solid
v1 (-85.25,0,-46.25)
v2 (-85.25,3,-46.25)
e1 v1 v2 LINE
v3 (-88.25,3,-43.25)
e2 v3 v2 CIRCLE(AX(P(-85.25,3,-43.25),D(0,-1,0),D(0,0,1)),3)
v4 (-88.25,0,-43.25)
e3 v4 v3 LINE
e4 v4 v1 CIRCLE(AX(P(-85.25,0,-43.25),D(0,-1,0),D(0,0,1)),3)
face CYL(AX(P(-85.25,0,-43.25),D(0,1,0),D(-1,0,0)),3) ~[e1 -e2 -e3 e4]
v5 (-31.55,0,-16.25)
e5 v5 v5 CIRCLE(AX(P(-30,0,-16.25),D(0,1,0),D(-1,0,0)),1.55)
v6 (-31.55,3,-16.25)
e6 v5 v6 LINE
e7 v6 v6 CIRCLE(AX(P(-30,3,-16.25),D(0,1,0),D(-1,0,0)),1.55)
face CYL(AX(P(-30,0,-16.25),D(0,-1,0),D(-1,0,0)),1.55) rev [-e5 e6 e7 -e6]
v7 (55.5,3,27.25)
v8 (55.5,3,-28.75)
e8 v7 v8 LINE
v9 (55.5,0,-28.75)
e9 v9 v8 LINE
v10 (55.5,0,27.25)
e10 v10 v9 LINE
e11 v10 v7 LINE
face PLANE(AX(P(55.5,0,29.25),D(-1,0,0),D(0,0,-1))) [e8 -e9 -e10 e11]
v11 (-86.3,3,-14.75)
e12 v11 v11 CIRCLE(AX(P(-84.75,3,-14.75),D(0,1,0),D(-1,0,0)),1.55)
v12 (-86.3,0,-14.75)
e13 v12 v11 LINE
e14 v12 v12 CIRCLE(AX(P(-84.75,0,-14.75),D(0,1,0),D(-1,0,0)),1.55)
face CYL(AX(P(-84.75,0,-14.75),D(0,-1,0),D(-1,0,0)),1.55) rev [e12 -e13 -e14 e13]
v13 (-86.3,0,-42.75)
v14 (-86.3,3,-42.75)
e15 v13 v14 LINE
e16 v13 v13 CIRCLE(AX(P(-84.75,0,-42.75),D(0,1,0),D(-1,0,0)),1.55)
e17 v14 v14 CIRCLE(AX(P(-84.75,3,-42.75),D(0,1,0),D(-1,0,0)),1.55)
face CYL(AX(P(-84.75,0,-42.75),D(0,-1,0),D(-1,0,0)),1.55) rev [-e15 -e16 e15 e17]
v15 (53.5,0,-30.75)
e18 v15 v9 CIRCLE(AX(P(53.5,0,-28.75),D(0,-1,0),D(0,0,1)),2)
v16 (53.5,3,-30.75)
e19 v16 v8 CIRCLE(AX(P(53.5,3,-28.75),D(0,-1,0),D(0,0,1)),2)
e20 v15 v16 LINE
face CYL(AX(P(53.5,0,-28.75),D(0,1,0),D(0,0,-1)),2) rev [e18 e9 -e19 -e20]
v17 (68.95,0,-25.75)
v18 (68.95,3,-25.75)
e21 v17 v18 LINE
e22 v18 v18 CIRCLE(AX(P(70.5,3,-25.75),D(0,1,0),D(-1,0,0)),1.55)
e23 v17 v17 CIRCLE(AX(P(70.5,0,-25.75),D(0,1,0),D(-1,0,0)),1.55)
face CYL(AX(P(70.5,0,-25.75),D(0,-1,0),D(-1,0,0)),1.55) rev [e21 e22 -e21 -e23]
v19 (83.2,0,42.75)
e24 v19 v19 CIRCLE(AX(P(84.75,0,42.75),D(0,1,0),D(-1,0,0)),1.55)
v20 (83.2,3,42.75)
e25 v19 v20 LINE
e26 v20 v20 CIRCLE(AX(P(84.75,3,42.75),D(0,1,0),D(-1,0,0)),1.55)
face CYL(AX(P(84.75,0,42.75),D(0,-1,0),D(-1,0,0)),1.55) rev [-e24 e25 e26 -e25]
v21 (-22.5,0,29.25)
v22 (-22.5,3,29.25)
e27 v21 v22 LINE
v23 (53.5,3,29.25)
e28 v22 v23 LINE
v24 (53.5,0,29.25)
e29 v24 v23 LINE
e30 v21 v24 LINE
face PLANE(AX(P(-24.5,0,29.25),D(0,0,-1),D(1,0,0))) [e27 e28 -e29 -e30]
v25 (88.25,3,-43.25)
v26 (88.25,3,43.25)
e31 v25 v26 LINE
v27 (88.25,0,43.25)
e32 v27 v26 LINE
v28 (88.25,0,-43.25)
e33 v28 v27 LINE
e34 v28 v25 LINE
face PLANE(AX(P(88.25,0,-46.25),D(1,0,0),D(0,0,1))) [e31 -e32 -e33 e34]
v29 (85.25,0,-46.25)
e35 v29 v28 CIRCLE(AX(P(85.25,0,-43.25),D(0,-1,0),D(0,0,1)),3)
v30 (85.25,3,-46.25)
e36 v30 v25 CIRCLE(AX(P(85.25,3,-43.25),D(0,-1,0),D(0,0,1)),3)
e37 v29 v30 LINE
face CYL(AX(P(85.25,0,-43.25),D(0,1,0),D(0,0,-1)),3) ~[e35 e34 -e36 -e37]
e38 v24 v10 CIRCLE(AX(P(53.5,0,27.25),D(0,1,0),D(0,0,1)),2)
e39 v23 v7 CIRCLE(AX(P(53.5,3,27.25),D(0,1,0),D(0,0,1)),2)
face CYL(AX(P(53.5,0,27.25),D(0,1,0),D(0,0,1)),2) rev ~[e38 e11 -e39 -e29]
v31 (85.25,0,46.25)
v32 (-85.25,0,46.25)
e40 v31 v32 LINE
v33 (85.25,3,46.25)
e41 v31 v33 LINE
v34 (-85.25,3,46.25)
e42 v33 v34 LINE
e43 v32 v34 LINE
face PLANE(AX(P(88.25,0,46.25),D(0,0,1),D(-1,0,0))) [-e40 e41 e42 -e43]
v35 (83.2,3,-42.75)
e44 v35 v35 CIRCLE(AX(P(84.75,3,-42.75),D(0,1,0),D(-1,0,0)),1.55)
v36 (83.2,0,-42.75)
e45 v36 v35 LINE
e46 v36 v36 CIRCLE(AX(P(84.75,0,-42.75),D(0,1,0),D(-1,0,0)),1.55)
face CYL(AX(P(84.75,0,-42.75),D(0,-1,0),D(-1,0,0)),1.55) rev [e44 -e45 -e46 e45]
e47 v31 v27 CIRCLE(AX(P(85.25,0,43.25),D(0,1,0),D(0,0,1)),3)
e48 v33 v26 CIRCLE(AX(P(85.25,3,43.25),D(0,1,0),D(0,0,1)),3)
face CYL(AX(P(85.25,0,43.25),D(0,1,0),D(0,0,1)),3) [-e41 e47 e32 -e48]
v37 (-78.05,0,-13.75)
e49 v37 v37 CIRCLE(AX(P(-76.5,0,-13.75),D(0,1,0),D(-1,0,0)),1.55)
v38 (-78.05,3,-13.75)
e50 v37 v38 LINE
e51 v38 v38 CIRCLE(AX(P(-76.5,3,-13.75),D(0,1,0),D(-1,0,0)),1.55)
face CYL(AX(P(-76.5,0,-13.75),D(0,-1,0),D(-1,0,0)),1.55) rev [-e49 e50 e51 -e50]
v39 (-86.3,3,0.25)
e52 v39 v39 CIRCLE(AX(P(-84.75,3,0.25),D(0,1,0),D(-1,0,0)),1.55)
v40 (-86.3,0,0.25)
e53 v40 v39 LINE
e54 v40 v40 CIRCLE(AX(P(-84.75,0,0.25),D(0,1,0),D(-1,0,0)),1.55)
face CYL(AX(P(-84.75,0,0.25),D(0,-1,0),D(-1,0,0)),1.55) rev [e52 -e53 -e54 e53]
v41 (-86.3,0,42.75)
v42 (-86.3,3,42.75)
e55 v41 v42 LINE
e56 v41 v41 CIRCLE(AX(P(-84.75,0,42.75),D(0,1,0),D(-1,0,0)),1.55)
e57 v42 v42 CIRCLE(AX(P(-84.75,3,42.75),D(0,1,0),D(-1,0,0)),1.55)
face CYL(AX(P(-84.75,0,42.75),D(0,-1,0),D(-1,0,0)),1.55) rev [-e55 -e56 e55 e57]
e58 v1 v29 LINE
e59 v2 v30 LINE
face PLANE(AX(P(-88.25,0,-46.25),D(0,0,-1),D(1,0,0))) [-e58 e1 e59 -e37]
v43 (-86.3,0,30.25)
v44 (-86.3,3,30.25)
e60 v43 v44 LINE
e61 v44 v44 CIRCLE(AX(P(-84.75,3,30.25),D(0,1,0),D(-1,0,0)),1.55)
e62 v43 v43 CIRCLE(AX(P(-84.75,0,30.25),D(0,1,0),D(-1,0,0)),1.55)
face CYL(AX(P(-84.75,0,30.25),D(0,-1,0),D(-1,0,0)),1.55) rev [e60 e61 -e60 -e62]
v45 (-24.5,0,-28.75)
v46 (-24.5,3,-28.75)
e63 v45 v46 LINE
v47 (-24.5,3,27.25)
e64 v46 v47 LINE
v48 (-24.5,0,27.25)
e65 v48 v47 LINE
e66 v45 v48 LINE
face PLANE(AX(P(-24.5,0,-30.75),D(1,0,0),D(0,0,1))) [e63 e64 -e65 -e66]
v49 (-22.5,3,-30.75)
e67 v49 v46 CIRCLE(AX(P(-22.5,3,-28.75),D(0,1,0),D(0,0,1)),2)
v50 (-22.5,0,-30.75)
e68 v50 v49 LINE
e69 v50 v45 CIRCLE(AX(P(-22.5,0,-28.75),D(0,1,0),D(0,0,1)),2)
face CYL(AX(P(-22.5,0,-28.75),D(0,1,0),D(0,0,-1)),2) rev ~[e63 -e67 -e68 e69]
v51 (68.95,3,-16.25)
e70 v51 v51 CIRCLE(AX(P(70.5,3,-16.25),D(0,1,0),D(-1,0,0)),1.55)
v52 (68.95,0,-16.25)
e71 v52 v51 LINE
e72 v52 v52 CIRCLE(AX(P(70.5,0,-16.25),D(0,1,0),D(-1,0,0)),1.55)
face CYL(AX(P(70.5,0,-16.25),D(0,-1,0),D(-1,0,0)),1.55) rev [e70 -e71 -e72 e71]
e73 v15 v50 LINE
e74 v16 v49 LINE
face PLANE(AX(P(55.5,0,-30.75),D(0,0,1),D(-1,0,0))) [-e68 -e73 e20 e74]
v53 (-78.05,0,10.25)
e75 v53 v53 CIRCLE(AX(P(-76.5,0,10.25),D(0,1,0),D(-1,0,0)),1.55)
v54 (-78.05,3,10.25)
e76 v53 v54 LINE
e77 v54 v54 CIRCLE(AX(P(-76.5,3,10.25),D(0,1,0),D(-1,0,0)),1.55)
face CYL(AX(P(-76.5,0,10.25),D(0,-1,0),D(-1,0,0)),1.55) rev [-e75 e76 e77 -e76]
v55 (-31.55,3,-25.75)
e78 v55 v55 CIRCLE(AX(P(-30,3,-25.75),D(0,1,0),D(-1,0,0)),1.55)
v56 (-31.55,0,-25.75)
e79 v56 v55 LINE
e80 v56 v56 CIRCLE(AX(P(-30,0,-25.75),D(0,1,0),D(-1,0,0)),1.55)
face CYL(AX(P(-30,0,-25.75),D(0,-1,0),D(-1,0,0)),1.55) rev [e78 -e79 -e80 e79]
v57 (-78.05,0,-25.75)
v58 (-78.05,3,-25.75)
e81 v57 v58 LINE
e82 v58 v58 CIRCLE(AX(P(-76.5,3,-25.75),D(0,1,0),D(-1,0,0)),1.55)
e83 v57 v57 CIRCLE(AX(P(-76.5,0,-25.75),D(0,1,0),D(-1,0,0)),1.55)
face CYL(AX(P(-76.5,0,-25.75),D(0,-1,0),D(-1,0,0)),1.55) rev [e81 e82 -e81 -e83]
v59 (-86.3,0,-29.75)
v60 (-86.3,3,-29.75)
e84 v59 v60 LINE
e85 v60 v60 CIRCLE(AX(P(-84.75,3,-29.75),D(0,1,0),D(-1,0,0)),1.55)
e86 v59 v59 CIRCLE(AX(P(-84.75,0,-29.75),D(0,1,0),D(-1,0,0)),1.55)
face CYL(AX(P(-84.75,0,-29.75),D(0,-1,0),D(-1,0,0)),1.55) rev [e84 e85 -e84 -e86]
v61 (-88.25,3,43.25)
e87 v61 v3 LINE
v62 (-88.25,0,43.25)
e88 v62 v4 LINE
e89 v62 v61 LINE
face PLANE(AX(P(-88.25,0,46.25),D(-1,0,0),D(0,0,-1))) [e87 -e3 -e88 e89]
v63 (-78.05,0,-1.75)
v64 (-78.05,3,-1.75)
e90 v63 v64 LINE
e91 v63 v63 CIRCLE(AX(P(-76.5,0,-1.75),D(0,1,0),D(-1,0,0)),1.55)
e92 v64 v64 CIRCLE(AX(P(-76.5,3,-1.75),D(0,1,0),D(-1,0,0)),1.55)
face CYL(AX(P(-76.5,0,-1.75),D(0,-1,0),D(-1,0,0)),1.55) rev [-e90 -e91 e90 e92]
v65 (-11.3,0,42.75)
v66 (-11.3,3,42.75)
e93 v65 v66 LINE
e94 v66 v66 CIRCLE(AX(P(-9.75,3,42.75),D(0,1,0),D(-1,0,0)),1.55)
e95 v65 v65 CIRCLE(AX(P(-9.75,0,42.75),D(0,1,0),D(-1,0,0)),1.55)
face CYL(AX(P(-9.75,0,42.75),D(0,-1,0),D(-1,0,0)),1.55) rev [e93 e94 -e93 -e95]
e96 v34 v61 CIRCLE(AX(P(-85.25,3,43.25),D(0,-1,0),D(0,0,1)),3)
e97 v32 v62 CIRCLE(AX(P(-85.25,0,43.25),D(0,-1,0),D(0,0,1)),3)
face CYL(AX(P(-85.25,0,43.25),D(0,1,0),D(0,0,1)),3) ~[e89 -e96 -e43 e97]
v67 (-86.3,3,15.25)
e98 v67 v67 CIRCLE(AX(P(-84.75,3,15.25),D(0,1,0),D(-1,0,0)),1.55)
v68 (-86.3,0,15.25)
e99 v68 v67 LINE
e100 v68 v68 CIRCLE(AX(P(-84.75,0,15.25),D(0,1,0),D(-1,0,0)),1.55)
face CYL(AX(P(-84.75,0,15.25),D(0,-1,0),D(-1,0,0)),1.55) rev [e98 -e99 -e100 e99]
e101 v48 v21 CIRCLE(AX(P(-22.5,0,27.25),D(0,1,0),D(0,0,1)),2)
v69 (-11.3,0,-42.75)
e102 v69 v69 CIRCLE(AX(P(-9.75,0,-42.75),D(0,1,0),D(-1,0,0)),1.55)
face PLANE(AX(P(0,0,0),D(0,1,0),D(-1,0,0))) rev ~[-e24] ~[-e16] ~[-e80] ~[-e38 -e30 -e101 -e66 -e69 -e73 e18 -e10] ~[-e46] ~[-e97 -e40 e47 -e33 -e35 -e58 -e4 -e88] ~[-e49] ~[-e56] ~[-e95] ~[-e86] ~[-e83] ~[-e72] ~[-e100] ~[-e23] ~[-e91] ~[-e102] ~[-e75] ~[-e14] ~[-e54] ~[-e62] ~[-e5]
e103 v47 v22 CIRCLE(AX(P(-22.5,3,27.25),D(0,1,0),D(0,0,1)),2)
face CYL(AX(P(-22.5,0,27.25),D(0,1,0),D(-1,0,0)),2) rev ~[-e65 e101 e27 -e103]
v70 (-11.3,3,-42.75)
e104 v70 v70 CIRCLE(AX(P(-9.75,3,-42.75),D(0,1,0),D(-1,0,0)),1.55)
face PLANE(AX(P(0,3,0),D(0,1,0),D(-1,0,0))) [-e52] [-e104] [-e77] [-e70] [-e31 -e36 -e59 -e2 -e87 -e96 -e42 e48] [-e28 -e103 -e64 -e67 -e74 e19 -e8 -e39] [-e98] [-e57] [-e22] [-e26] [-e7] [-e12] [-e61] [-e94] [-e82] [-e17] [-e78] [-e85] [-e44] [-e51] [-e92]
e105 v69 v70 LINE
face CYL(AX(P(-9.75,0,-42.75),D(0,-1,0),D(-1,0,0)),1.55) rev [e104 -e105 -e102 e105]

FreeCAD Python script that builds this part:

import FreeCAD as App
import Part
import Sketcher

V = App.Vector


def edges_at(feature, points):
    """Names of the edges that pass closest to the given points."""
    edges = feature.Shape.Edges
    near = lambda p: min(range(len(edges)), key=lambda i: edges[i].distToShape(Part.Vertex(*p))[0])
    return sorted({f"Edge{near(p) + 1}" for p in points})


def add_polygon(sketch, points):
    """Adds a closed chain of lines whose ends are joined by coincident constraints."""
    first, n = sketch.GeometryCount, len(points)
    for a, b in zip(points, points[1:] + points[:1]):
        sketch.addGeometry(Part.LineSegment(App.Vector(*a, 0), App.Vector(*b, 0)), False)
    for i in range(n):
        sketch.addConstraint(Sketcher.Constraint("Coincident", first + i, 2, first + (i + 1) % n, 1))

doc = App.newDocument("Part")
body = doc.addObject("PartDesign::Body", "Body")

sketch1 = body.newObject("Sketcher::SketchObject", "Sketch")
sketch1.AttachmentSupport = (doc.getObject("XZ_Plane"), [""])
sketch1.MapMode = "FlatFace"
add_polygon(sketch1, [(-88.25, 46.25), (88.25, 46.25), (88.25, -46.25), (-88.25, -46.25)])
sketch1.addGeometry(Part.Circle(V(84.75, -42.75, 0), V(0, 0, 1), 1.55), False)
sketch1.addGeometry(Part.Circle(V(70.5, -25.75, 0), V(0, 0, 1), 1.55), False)
sketch1.addGeometry(Part.Circle(V(70.5, -16.25, 0), V(0, 0, 1), 1.55), False)
add_polygon(sketch1, [(-24.5, -30.75), (55.5, -30.75), (55.5, 29.25), (-24.5, 29.25)])
sketch1.addGeometry(Part.Circle(V(-9.75, -42.75, 0), V(0, 0, 1), 1.55), False)
sketch1.addGeometry(Part.Circle(V(-30, -25.75, 0), V(0, 0, 1), 1.55), False)
sketch1.addGeometry(Part.Circle(V(-84.75, -42.75, 0), V(0, 0, 1), 1.55), False)
sketch1.addGeometry(Part.Circle(V(-84.75, -29.75, 0), V(0, 0, 1), 1.55), False)
sketch1.addGeometry(Part.Circle(V(-76.5, -25.75, 0), V(0, 0, 1), 1.55), False)
sketch1.addGeometry(Part.Circle(V(-30, -16.25, 0), V(0, 0, 1), 1.55), False)
sketch1.addGeometry(Part.Circle(V(-76.5, -13.75, 0), V(0, 0, 1), 1.55), False)
sketch1.addGeometry(Part.Circle(V(-84.75, -14.75, 0), V(0, 0, 1), 1.55), False)
sketch1.addGeometry(Part.Circle(V(-76.5, -1.75, 0), V(0, 0, 1), 1.55), False)
sketch1.addGeometry(Part.Circle(V(84.75, 42.75, 0), V(0, 0, 1), 1.55), False)
sketch1.addGeometry(Part.Circle(V(-84.75, 0.25, 0), V(0, 0, 1), 1.55), False)
sketch1.addGeometry(Part.Circle(V(-76.5, 10.25, 0), V(0, 0, 1), 1.55), False)
sketch1.addGeometry(Part.Circle(V(-84.75, 15.25, 0), V(0, 0, 1), 1.55), False)
sketch1.addGeometry(Part.Circle(V(-9.75, 42.75, 0), V(0, 0, 1), 1.55), False)
sketch1.addGeometry(Part.Circle(V(-84.75, 30.25, 0), V(0, 0, 1), 1.55), False)
sketch1.addGeometry(Part.Circle(V(-84.75, 42.75, 0), V(0, 0, 1), 1.55), False)
sketch1.addConstraint([
    Sketcher.Constraint("Horizontal", 0),
    Sketcher.Constraint("Vertical", 1),
    Sketcher.Constraint("Horizontal", 2),
    Sketcher.Constraint("Vertical", 3),
    Sketcher.Constraint("Horizontal", 7),
    Sketcher.Constraint("Vertical", 8),
    Sketcher.Constraint("Horizontal", 9),
    Sketcher.Constraint("Vertical", 10),
    Sketcher.Constraint("Equal", 4, 5),
    Sketcher.Constraint("Equal", 5, 6),
    Sketcher.Constraint("Equal", 6, 11),
    Sketcher.Constraint("Equal", 11, 12),
    Sketcher.Constraint("Equal", 12, 13),
    Sketcher.Constraint("Equal", 13, 14),
    Sketcher.Constraint("Equal", 14, 15),
    Sketcher.Constraint("Equal", 15, 16),
    Sketcher.Constraint("Equal", 16, 17),
    Sketcher.Constraint("Equal", 17, 18),
    Sketcher.Constraint("Equal", 18, 19),
    Sketcher.Constraint("Equal", 19, 20),
    Sketcher.Constraint("Equal", 20, 21),
    Sketcher.Constraint("Equal", 21, 22),
    Sketcher.Constraint("Equal", 22, 23),
    Sketcher.Constraint("Equal", 23, 24),
    Sketcher.Constraint("Equal", 24, 25),
    Sketcher.Constraint("Equal", 25, 26),
    Sketcher.Constraint("Symmetric", 13, 3, 20, 3, -1, 1),
    Sketcher.Constraint("Symmetric", 4, 3, 26, 3, -1, 1),
    Sketcher.Constraint("Symmetric", 0, 2, 2, 2, -1, 1),
    Sketcher.Constraint("Symmetric", 4, 3, 13, 3, -2),
    Sketcher.Constraint("Symmetric", 11, 3, 24, 3, -1),
    Sketcher.Constraint("Horizontal", 4, 3, 11, 3),
    Sketcher.Constraint("Horizontal", 5, 3, 12, 3),
    Sketcher.Constraint("Horizontal", 12, 3, 15, 3),
    Sketcher.Constraint("Horizontal", 6, 3, 16, 3),
    Sketcher.Constraint("Vertical", 5, 3, 6, 3),
    Sketcher.Constraint("Vertical", 13, 3, 14, 3),
    Sketcher.Constraint("Vertical", 12, 3, 16, 3),
    Sketcher.Constraint("Vertical", 15, 3, 17, 3),
    Sketcher.Constraint("Vertical", 14, 3, 18, 3),
    Sketcher.Constraint("Vertical", 17, 3, 19, 3),
    Sketcher.Constraint("Vertical", 18, 3, 21, 3),
    Sketcher.Constraint("Vertical", 19, 3, 22, 3),
    Sketcher.Constraint("Vertical", 21, 3, 23, 3),
    Sketcher.Constraint("Vertical", 23, 3, 25, 3),
    Sketcher.Constraint("Diameter", 4, 3.1),
    Sketcher.Constraint("DistanceX", 0, 1, 0, 2, 176.5),
    Sketcher.Constraint("DistanceY", 1, 2, 1, 1, 92.5),
    Sketcher.Constraint("DistanceX", 12, 3, -1, 1, 30.0),
    Sketcher.Constraint("DistanceY", 15, 3, 17, 3, 12.0),
    Sketcher.Constraint("DistanceY", 14, 3, 18, 3, 15.0),
    Sketcher.Constraint("DistanceY", 17, 3, 19, 3, 12.0),
    Sketcher.Constraint("DistanceY", 18, 3, 21, 3, 15.0),
    Sketcher.Constraint("DistanceY", 19, 3, 22, 3, 12.0),
    Sketcher.Constraint("DistanceY", 21, 3, 22, 3, 10.0),
    Sketcher.Constraint("DistanceY", 21, 3, 23, 3, 15.0),
    Sketcher.Constraint("DistanceY", 23, 3, 25, 3, 15.0),
    Sketcher.Constraint("DistanceY", 1, 2, 6, 3, 30.0),
    Sketcher.Constraint("DistanceX", 7, 2, 5, 3, 15.0),
    Sketcher.Constraint("DistanceY", 4, 3, 7, 2, 12.0),
    Sketcher.Constraint("DistanceY", 5, 3, 6, 3, 9.5),
    Sketcher.Constraint("DistanceX", 12, 3, 5, 3, 100.5),
    Sketcher.Constraint("DistanceX", 20, 3, 0, 2, 3.5),
    Sketcher.Constraint("DistanceY", 20, 3, 0, 2, 3.5),
    Sketcher.Constraint("DistanceX", 7, 1, 7, 2, 80.0),
    Sketcher.Constraint("DistanceY", 8, 1, 8, 2, 60.0),
    Sketcher.Constraint("DistanceX", 2, 2, 15, 3, 11.75),
    Sketcher.Constraint("DistanceX", 13, 3, 11, 3, 75.0),
])
pad1 = body.newObject("PartDesign::Pad", "Pad")
pad1.Profile = sketch1
pad1.Length = 3
pad1.Reversed = True
doc.recompute()

fillet = body.newObject("PartDesign::Fillet", "Fillet")
fillet.Base = (pad1, edges_at(pad1, [
    (-24.5, 1.5, 29.25),
    (-24.5, 1.5, -30.75),
    (55.5, 1.5, 29.25),
    (55.5, 1.5, -30.75),
]))
fillet.Radius = 2
doc.recompute()

fillet2 = body.newObject("PartDesign::Fillet", "Fillet001")
fillet2.Base = (fillet, edges_at(fillet, [
    (-88.25, 1.5, 46.25),
    (-88.25, 1.5, -46.25),
    (88.25, 1.5, 46.25),
    (88.25, 1.5, -46.25),
]))
fillet2.Radius = 3

doc.recompute()
